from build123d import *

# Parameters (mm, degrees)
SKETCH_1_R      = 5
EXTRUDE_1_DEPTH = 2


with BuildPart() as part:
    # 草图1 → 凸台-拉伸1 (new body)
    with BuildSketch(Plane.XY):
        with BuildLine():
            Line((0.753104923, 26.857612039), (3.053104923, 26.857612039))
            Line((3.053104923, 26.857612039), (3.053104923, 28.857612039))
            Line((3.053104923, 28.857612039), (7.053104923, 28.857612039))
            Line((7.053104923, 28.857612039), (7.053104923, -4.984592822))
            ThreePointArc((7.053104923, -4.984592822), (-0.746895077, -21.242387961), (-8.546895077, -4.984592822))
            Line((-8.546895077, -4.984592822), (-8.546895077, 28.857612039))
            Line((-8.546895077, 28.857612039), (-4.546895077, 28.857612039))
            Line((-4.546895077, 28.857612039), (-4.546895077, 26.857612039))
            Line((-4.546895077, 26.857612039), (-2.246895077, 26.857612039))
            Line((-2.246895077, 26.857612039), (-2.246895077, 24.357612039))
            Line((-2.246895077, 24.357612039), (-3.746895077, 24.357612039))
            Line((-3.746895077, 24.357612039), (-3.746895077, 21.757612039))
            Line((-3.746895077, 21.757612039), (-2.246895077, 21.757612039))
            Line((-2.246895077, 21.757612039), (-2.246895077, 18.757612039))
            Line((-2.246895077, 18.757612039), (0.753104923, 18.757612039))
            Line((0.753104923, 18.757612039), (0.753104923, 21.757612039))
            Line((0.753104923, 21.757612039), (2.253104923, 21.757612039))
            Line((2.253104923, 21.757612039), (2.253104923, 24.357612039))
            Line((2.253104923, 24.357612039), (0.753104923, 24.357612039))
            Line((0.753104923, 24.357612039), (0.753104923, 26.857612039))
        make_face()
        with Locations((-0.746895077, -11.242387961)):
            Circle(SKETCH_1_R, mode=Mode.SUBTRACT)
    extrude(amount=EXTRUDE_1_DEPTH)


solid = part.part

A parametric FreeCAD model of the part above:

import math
import FreeCAD as App
import Part
import Sketcher
from FreeCAD import Vector

doc = App.newDocument("Part")
body = doc.addObject("PartDesign::Body", "Body")

sketch1 = body.newObject("Sketcher::SketchObject", "Sketch")
sketch1.AttachmentSupport = (doc.getObject("XY_Plane"), [""])
sketch1.MapMode = "FlatFace"
sketch1.addGeometry([
    Part.LineSegment(Vector(3.1, 26.9, 0), Vector(0.8, 26.9, 0)),
    Part.LineSegment(Vector(0.8, 26.9, 0), Vector(0.8, 24.4, 0)),
    Part.LineSegment(Vector(0.8, 24.4, 0), Vector(2.3, 24.4, 0)),
    Part.LineSegment(Vector(2.3, 24.4, 0), Vector(2.3, 21.8, 0)),
    Part.LineSegment(Vector(2.3, 21.8, 0), Vector(0.8, 21.8, 0)),
    Part.LineSegment(Vector(0.8, 21.8, 0), Vector(0.8, 18.8, 0)),
    Part.LineSegment(Vector(0.8, 18.8, 0), Vector(-2.2, 18.8, 0)),
    Part.LineSegment(Vector(-2.2, 18.8, 0), Vector(-2.2, 21.8, 0)),
    Part.LineSegment(Vector(-2.2, 21.8, 0), Vector(-3.7, 21.8, 0)),
    Part.LineSegment(Vector(-3.7, 21.8, 0), Vector(-3.7, 24.4, 0)),
    Part.LineSegment(Vector(-3.7, 24.4, 0), Vector(-2.2, 24.4, 0)),
    Part.LineSegment(Vector(-2.2, 24.4, 0), Vector(-2.2, 26.9, 0)),
    Part.LineSegment(Vector(-2.2, 26.9, 0), Vector(-4.5, 26.9, 0)),
    Part.LineSegment(Vector(-4.5, 26.9, 0), Vector(-4.5, 28.9, 0)),
    Part.LineSegment(Vector(-4.5, 28.9, 0), Vector(-8.5, 28.9, 0)),
    Part.LineSegment(Vector(-8.5, 28.9, 0), Vector(-8.5, -5, 0)),
    Part.ArcOfCircle(Part.Circle(Vector(-0.7, -11.2, 0), Vector(0, 0, 1), 10), math.radians(141), math.radians(399)),
    Part.LineSegment(Vector(7.1, -5, 0), Vector(7.1, 28.9, 0)),
    Part.LineSegment(Vector(7.1, 28.9, 0), Vector(3.1, 28.9, 0)),
    Part.LineSegment(Vector(3.1, 28.9, 0), Vector(3.1, 26.9, 0)),
    Part.Circle(Vector(-0.7, -11.2, 0), Vector(0, 0, 1), 5),
], False)
sketch1.addConstraint([
    Sketcher.Constraint("Coincident", 0, 2, 1, 1),
    Sketcher.Constraint("Coincident", 1, 2, 2, 1),
    Sketcher.Constraint("Coincident", 2, 2, 3, 1),
    Sketcher.Constraint("Coincident", 3, 2, 4, 1),
    Sketcher.Constraint("Coincident", 4, 2, 5, 1),
    Sketcher.Constraint("Coincident", 5, 2, 6, 1),
    Sketcher.Constraint("Coincident", 6, 2, 7, 1),
    Sketcher.Constraint("Coincident", 7, 2, 8, 1),
    Sketcher.Constraint("Coincident", 8, 2, 9, 1),
    Sketcher.Constraint("Coincident", 9, 2, 10, 1),
    Sketcher.Constraint("Coincident", 10, 2, 11, 1),
    Sketcher.Constraint("Coincident", 11, 2, 12, 1),
    Sketcher.Constraint("Coincident", 12, 2, 13, 1),
    Sketcher.Constraint("Coincident", 13, 2, 14, 1),
    Sketcher.Constraint("Coincident", 14, 2, 15, 1),
    Sketcher.Constraint("Coincident", 15, 2, 16, 1),
    Sketcher.Constraint("Coincident", 16, 2, 17, 1),
    Sketcher.Constraint("Coincident", 17, 2, 18, 1),
    Sketcher.Constraint("Coincident", 18, 2, 19, 1),
    Sketcher.Constraint("Coincident", 19, 2, 0, 1),
    Sketcher.Constraint("Horizontal", 0),
    Sketcher.Constraint("Vertical", 1),
    Sketcher.Constraint("Horizontal", 2),
    Sketcher.Constraint("Vertical", 3),
    Sketcher.Constraint("Horizontal", 4),
    Sketcher.Constraint("Vertical", 5),
    Sketcher.Constraint("Horizontal", 6),
    Sketcher.Constraint("Vertical", 7),
    Sketcher.Constraint("Horizontal", 8),
    Sketcher.Constraint("Vertical", 9),
    Sketcher.Constraint("Horizontal", 10),
    Sketcher.Constraint("Vertical", 11),
    Sketcher.Constraint("Horizontal", 12),
    Sketcher.Constraint("Vertical", 13),
    Sketcher.Constraint("Horizontal", 14),
    Sketcher.Constraint("Vertical", 15),
    Sketcher.Constraint("Vertical", 17),
    Sketcher.Constraint("Horizontal", 18),
    Sketcher.Constraint("Vertical", 19),
    Sketcher.Constraint("Coincident", 20, 3, 16, 3),
    Sketcher.Constraint("Horizontal", 4, 2, 7, 2),
    Sketcher.Constraint("Horizontal", 2, 2, 9, 2),
    Sketcher.Constraint("Horizontal", 0, 2, 11, 2),
    Sketcher.Constraint("Horizontal", 15, 2, 16, 2),
    Sketcher.Constraint("Horizontal", 14, 2, 17, 2),
    Sketcher.Constraint("Vertical", 1, 2, 4, 2),
    Sketcher.Constraint("Vertical", 7, 2, 10, 2),
    Sketcher.Constraint("Equal", 4, 8),
    Sketcher.Constraint("Equal", 0, 12),
    Sketcher.Constraint("Equal", 14, 18),
    Sketcher.Constraint("Equal", 6, 5),
    Sketcher.Constraint("Diameter", 20, 10.0),
    Sketcher.Constraint("Radius", 16, 10.0),
    Sketcher.Constraint("DistanceX", 6, 2, 6, 1, 3.0),
    Sketcher.Constraint("DistanceX", 14, 2, 14, 1, 4.0),
    Sketcher.Constraint("DistanceY", 13, 1, 13, 2, 2.0),
    Sketcher.Constraint("DistanceX", 0, 2, 0, 1, 2.3),
    Sketcher.Constraint("DistanceX", 2, 1, 2, 2, 1.5),
    Sketcher.Constraint("DistanceY", 1, 2, 1, 1, 2.5),
    Sketcher.Constraint("DistanceY", 3, 2, 3, 1, 2.6),
    Sketcher.Constraint("DistanceY", 16, 3, 3, 2, 33.0),
    Sketcher.Constraint("DistanceX", 16, 3, -1, 1, 0.746895),
    Sketcher.Constraint("DistanceY", 16, 3, -1, 1, 11.242388),
])
pad1 = body.newObject("PartDesign::Pad", "Pad")
pad1.Profile = sketch1
pad1.Length = 2

doc.recompute()
